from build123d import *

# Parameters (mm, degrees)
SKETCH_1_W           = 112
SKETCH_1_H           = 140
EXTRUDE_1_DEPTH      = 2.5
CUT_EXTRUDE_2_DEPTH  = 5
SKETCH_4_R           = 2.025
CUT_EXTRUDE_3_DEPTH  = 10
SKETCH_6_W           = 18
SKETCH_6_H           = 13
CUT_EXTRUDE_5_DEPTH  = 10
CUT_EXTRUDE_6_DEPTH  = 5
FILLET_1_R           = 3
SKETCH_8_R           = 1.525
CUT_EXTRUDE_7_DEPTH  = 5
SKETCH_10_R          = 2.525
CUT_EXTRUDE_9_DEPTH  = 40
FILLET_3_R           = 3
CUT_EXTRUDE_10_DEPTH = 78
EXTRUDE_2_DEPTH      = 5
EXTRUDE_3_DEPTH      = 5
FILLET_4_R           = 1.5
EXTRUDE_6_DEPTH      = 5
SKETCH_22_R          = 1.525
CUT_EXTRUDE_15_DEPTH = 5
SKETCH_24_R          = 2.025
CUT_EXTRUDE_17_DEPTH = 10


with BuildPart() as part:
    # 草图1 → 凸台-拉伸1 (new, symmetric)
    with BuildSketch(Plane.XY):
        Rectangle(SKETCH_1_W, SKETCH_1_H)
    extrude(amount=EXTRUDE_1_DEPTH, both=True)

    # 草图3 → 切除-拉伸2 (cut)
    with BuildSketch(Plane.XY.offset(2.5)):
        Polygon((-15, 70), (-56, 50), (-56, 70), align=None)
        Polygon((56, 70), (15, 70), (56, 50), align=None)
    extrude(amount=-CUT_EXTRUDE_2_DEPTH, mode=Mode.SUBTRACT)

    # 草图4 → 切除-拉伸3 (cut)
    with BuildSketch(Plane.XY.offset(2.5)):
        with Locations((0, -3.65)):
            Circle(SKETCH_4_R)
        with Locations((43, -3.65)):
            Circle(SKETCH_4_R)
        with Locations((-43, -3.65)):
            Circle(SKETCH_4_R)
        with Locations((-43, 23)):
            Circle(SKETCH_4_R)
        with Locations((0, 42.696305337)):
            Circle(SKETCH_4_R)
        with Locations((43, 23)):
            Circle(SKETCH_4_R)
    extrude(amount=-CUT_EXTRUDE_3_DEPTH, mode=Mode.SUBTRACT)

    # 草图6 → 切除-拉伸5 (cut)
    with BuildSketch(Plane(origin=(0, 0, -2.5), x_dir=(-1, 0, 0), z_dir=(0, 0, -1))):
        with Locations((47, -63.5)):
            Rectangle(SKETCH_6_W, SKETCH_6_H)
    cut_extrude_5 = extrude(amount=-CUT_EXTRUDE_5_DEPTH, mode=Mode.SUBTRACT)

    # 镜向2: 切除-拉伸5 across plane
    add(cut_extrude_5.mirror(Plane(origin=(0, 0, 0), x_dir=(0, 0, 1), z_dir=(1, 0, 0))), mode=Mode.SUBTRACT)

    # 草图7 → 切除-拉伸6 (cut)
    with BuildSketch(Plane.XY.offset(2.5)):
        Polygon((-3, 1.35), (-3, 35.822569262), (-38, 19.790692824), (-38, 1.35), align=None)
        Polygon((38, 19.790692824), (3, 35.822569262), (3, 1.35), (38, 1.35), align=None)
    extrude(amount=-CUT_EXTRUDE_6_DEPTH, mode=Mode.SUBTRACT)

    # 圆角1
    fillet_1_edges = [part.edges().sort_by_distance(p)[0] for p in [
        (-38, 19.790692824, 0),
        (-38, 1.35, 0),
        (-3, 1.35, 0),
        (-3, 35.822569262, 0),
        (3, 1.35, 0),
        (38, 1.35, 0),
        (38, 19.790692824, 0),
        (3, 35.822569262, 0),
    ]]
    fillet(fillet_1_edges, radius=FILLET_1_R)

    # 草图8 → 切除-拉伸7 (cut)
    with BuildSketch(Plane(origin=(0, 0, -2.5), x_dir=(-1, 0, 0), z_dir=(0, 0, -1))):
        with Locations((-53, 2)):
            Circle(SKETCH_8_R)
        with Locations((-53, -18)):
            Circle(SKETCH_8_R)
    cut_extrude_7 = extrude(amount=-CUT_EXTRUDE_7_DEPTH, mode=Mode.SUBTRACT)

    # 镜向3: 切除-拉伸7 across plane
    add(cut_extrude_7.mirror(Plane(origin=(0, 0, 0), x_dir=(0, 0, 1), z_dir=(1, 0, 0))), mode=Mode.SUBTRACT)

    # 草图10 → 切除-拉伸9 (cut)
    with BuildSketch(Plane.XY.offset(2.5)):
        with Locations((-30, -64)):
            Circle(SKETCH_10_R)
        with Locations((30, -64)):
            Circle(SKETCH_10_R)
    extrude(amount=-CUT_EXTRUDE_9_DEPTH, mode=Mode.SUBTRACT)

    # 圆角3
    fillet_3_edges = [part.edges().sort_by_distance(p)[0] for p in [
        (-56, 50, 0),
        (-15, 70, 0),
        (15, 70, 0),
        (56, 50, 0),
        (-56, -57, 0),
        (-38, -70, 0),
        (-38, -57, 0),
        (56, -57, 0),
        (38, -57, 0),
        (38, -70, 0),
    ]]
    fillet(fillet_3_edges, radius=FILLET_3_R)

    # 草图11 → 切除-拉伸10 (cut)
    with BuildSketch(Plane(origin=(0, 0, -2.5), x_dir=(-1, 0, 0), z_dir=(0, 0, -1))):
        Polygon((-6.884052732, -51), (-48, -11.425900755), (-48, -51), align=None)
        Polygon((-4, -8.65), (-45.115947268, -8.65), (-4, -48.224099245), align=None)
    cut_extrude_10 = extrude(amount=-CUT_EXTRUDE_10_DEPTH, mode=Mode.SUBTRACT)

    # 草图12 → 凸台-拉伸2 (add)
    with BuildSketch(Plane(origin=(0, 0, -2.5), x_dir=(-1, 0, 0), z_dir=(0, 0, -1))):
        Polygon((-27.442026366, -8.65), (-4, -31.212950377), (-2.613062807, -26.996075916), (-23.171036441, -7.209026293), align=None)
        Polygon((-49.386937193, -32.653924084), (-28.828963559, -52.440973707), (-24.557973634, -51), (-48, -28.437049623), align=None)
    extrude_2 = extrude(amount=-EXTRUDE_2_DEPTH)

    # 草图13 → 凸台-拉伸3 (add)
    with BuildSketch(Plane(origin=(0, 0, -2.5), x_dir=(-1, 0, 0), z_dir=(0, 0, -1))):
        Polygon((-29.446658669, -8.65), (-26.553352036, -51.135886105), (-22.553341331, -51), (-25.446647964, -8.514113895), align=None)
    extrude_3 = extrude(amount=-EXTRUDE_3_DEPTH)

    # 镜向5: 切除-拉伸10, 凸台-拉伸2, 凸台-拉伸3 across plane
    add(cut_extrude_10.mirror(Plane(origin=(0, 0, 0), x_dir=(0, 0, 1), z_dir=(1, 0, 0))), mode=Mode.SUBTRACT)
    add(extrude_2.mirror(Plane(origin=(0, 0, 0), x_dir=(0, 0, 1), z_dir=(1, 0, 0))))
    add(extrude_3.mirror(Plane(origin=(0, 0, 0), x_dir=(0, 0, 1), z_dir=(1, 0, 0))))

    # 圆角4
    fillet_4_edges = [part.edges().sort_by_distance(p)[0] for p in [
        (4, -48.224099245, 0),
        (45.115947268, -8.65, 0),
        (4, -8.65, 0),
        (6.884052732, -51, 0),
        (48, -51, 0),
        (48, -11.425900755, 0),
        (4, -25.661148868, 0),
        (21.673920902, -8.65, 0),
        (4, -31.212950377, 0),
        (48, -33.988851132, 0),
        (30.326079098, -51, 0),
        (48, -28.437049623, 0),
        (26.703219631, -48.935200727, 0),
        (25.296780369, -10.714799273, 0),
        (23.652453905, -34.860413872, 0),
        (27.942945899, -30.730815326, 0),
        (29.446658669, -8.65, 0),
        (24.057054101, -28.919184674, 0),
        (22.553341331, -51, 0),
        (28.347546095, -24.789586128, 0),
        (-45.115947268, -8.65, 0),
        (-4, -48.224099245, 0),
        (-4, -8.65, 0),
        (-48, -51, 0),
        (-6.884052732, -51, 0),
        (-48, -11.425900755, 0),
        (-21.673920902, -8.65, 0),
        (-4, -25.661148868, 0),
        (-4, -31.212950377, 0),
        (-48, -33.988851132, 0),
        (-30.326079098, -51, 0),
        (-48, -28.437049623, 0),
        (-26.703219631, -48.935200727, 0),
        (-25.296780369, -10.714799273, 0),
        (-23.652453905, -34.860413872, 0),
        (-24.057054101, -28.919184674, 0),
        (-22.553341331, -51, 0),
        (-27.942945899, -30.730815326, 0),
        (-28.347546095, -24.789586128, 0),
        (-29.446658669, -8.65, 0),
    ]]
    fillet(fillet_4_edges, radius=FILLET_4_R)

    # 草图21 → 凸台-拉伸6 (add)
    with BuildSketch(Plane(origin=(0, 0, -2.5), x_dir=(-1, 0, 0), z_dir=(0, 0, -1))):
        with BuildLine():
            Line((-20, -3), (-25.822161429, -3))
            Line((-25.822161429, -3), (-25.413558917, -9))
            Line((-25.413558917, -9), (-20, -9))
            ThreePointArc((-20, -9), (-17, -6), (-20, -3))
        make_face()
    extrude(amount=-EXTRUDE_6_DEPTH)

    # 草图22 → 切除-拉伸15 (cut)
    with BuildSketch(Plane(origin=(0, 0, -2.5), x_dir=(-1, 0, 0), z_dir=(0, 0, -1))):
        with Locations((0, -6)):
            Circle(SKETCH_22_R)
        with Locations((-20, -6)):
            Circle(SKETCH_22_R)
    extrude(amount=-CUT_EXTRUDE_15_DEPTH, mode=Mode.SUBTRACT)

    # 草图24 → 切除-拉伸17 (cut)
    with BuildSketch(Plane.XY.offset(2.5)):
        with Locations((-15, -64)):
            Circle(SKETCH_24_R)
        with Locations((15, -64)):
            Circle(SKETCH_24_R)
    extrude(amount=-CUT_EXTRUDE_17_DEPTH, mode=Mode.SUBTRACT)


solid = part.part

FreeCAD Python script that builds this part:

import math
import FreeCAD as App
import Part
import Sketcher
from FreeCAD import Vector


def edges_at(feature, points):
    """Names of the edges that pass closest to the given points."""
    edges = feature.Shape.Edges
    near = lambda p: min(range(len(edges)), key=lambda i: edges[i].distToShape(Part.Vertex(*p))[0])
    return sorted({f"Edge{near(p) + 1}" for p in points})

doc = App.newDocument("Part")
body = doc.addObject("PartDesign::Body", "Body")

# Sketch on XY plane
sketch1 = doc.addObject("Sketcher::SketchObject", "Sketch")
body.addObject(sketch1)
sketch1.AttachmentSupport = (doc.XY_Plane, [""])
sketch1.MapMode = "FlatFace"
sketch1.addGeometry(Part.LineSegment(Vector(-56, 70, 0), Vector(-56, -70, 0)), False)
sketch1.addGeometry(Part.LineSegment(Vector(-56, -70, 0), Vector(56, -70, 0)), False)
sketch1.addGeometry(Part.LineSegment(Vector(56, -70, 0), Vector(56, 70, 0)), False)
sketch1.addGeometry(Part.LineSegment(Vector(56, 70, 0), Vector(-56, 70, 0)), False)
sketch1.addConstraint(Sketcher.Constraint("Coincident", 0, 2, 1, 1))
sketch1.addConstraint(Sketcher.Constraint("Coincident", 1, 2, 2, 1))
sketch1.addConstraint(Sketcher.Constraint("Coincident", 2, 2, 3, 1))
sketch1.addConstraint(Sketcher.Constraint("Coincident", 3, 2, 0, 1))
sketch1.addConstraint(Sketcher.Constraint("Vertical", 0))
sketch1.addConstraint(Sketcher.Constraint("Horizontal", 1))
sketch1.addConstraint(Sketcher.Constraint("Vertical", 2))
sketch1.addConstraint(Sketcher.Constraint("Horizontal", 3))
sketch1.addConstraint(Sketcher.Constraint("Symmetric", 0, 2, 2, 2, -1, 1))
sketch1.addConstraint(Sketcher.Constraint("DistanceX", 1, 1, 1, 2, 112.0))
sketch1.addConstraint(Sketcher.Constraint("DistanceY", 0, 2, 0, 1, 140.0))
pad1 = doc.addObject("PartDesign::Pad", "Pad")
body.addObject(pad1)
pad1.Profile = sketch1
pad1.Length = 5
pad1.Midplane = True

# Sketch on XY plane
sketch2 = doc.addObject("Sketcher::SketchObject", "Sketch001")
body.addObject(sketch2)
sketch2.AttachmentSupport = (doc.XY_Plane, [""])
sketch2.MapMode = "FlatFace"
sketch2.AttachmentOffset = App.Placement(Vector(0, 0, 2.5), App.Rotation())
sketch2.addGeometry(Part.LineSegment(Vector(-56, 50, 0), Vector(-15, 70, 0)), False)
sketch2.addGeometry(Part.LineSegment(Vector(-15, 70, 0), Vector(-56, 70, 0)), False)
sketch2.addGeometry(Part.LineSegment(Vector(-56, 70, 0), Vector(-56, 50, 0)), False)
sketch2.addGeometry(Part.LineSegment(Vector(56, 70, 0), Vector(15, 70, 0)), False)
sketch2.addGeometry(Part.LineSegment(Vector(15, 70, 0), Vector(56, 50, 0)), False)
sketch2.addGeometry(Part.LineSegment(Vector(56, 50, 0), Vector(56, 70, 0)), False)
sketch2.addConstraint(Sketcher.Constraint("Coincident", 0, 2, 1, 1))
sketch2.addConstraint(Sketcher.Constraint("Coincident", 1, 2, 2, 1))
sketch2.addConstraint(Sketcher.Constraint("Coincident", 2, 2, 0, 1))
sketch2.addConstraint(Sketcher.Constraint("Coincident", 3, 2, 4, 1))
sketch2.addConstraint(Sketcher.Constraint("Coincident", 4, 2, 5, 1))
sketch2.addConstraint(Sketcher.Constraint("Coincident", 5, 2, 3, 1))
sketch2.addConstraint(Sketcher.Constraint("Horizontal", 1))
sketch2.addConstraint(Sketcher.Constraint("Vertical", 2))
sketch2.addConstraint(Sketcher.Constraint("Horizontal", 3))
sketch2.addConstraint(Sketcher.Constraint("Vertical", 5))
sketch2.addConstraint(Sketcher.Constraint("Symmetric", 0, 2, 3, 2, -2))
sketch2.addConstraint(Sketcher.Constraint("Symmetric", 2, 2, 4, 2, -2))
sketch2.addConstraint(Sketcher.Constraint("DistanceX", 1, 2, 1, 1, 41.0))
sketch2.addConstraint(Sketcher.Constraint("DistanceY", 2, 2, 2, 1, 20.0))
sketch2.addConstraint(Sketcher.Constraint("DistanceX", 0, 2, -1, 1, 15.0))
sketch2.addConstraint(Sketcher.Constraint("DistanceY", -1, 1, 0, 2, 70.0))
pocket1 = doc.addObject("PartDesign::Pocket", "Pocket")
body.addObject(pocket1)
pocket1.Profile = sketch2
pocket1.Length = 5

# Sketch on XY plane
sketch3 = doc.addObject("Sketcher::SketchObject", "Sketch002")
body.addObject(sketch3)
sketch3.AttachmentSupport = (doc.XY_Plane, [""])
sketch3.MapMode = "FlatFace"
sketch3.AttachmentOffset = App.Placement(Vector(0, 0, 2.5), App.Rotation())
sketch3.addGeometry(Part.Circle(Vector(0, -3.6, 0), Vector(0, 0, 1), 2), False)
sketch3.addGeometry(Part.Circle(Vector(43, -3.6, 0), Vector(0, 0, 1), 2), False)
sketch3.addGeometry(Part.Circle(Vector(-43, -3.6, 0), Vector(0, 0, 1), 2), False)
sketch3.addGeometry(Part.Circle(Vector(-43, 23, 0), Vector(0, 0, 1), 2), False)
sketch3.addGeometry(Part.Circle(Vector(0, 42.7, 0), Vector(0, 0, 1), 2), False)
sketch3.addGeometry(Part.Circle(Vector(43, 23, 0), Vector(0, 0, 1), 2), False)
sketch3.addConstraint(Sketcher.Constraint("Equal", 0, 1))
sketch3.addConstraint(Sketcher.Constraint("Equal", 1, 2))
sketch3.addConstraint(Sketcher.Constraint("Equal", 2, 3))
sketch3.addConstraint(Sketcher.Constraint("Equal", 3, 4))
sketch3.addConstraint(Sketcher.Constraint("Equal", 4, 5))
sketch3.addConstraint(Sketcher.Constraint("Symmetric", 1, 3, 2, 3, -2))
sketch3.addConstraint(Sketcher.Constraint("Symmetric", 3, 3, 5, 3, -2))
sketch3.addConstraint(Sketcher.Constraint("PointOnObject", 0, 3, -2))
sketch3.addConstraint(Sketcher.Constraint("PointOnObject", 4, 3, -2))
sketch3.addConstraint(Sketcher.Constraint("Horizontal", 0, 3, 1, 3))
sketch3.addConstraint(Sketcher.Constraint("Vertical", 2, 3, 3, 3))
sketch3.addConstraint(Sketcher.Constraint("Diameter", 0, 4.05))
sketch3.addConstraint(Sketcher.Constraint("DistanceX", -1, 1, 1, 3, 43.0))
sketch3.addConstraint(Sketcher.Constraint("DistanceY", -1, 1, 3, 3, 23.0))
sketch3.addConstraint(Sketcher.Constraint("DistanceY", 0, 3, -1, 1, 3.65))
sketch3.addConstraint(Sketcher.Constraint("DistanceY", -1, 1, 4, 3, 42.696305))
pocket2 = doc.addObject("PartDesign::Pocket", "Pocket001")
body.addObject(pocket2)
pocket2.Profile = sketch3
pocket2.Length = 10

# Sketch on XY plane
sketch4 = doc.addObject("Sketcher::SketchObject", "Sketch003")
body.addObject(sketch4)
sketch4.AttachmentSupport = (doc.XY_Plane, [""])
sketch4.MapMode = "FlatFace"
sketch4.AttachmentOffset = App.Placement(Vector(0, 0, -2.5), App.Rotation())
sketch4.addGeometry(Part.LineSegment(Vector(-38, -57, 0), Vector(-38, -70, 0)), False)
sketch4.addGeometry(Part.LineSegment(Vector(-38, -70, 0), Vector(-56, -70, 0)), False)
sketch4.addGeometry(Part.LineSegment(Vector(-56, -70, 0), Vector(-56, -57, 0)), False)
sketch4.addGeometry(Part.LineSegment(Vector(-56, -57, 0), Vector(-38, -57, 0)), False)
sketch4.addConstraint(Sketcher.Constraint("Coincident", 0, 2, 1, 1))
sketch4.addConstraint(Sketcher.Constraint("Coincident", 1, 2, 2, 1))
sketch4.addConstraint(Sketcher.Constraint("Coincident", 2, 2, 3, 1))
sketch4.addConstraint(Sketcher.Constraint("Coincident", 3, 2, 0, 1))
sketch4.addConstraint(Sketcher.Constraint("Vertical", 0))
sketch4.addConstraint(Sketcher.Constraint("Horizontal", 1))
sketch4.addConstraint(Sketcher.Constraint("Vertical", 2))
sketch4.addConstraint(Sketcher.Constraint("Horizontal", 3))
sketch4.addConstraint(Sketcher.Constraint("DistanceX", 1, 2, 1, 1, 18.0))
sketch4.addConstraint(Sketcher.Constraint("DistanceY", 0, 2, 0, 1, 13.0))
sketch4.addConstraint(Sketcher.Constraint("DistanceX", 0, 2, -1, 1, 38.0))
sketch4.addConstraint(Sketcher.Constraint("DistanceY", 0, 2, -1, 1, 70.0))
pocket3 = doc.addObject("PartDesign::Pocket", "Pocket002")
body.addObject(pocket3)
pocket3.Profile = sketch4
pocket3.Length = 10
pocket3.Reversed = True
doc.recompute()

mirrored = doc.addObject("PartDesign::Mirrored", "Mirrored")
body.addObject(mirrored)
mirrored.Originals = [pocket3]
mirrored.MirrorPlane = (doc.YZ_Plane, [""])
body.Tip = mirrored

# Sketch on XY plane
sketch5 = doc.addObject("Sketcher::SketchObject", "Sketch004")
body.addObject(sketch5)
sketch5.AttachmentSupport = (doc.XY_Plane, [""])
sketch5.MapMode = "FlatFace"
sketch5.AttachmentOffset = App.Placement(Vector(0, 0, 2.5), App.Rotation())
sketch5.addGeometry(Part.LineSegment(Vector(-3, 1, 0), Vector(-3, 36, 0)), False)
sketch5.addGeometry(Part.LineSegment(Vector(-3, 36, 0), Vector(-38, 20, 0)), False)
sketch5.addGeometry(Part.LineSegment(Vector(-38, 20, 0), Vector(-38, 1, 0)), False)
sketch5.addGeometry(Part.LineSegment(Vector(-38, 1, 0), Vector(-3, 1, 0)), False)
sketch5.addGeometry(Part.LineSegment(Vector(38, 20, 0), Vector(3, 36, 0)), False)
sketch5.addGeometry(Part.LineSegment(Vector(3, 36, 0), Vector(3, 1, 0)), False)
sketch5.addGeometry(Part.LineSegment(Vector(3, 1, 0), Vector(38, 1, 0)), False)
sketch5.addGeometry(Part.LineSegment(Vector(38, 1, 0), Vector(38, 20, 0)), False)
sketch5.addConstraint(Sketcher.Constraint("Coincident", 0, 2, 1, 1))
sketch5.addConstraint(Sketcher.Constraint("Coincident", 1, 2, 2, 1))
sketch5.addConstraint(Sketcher.Constraint("Coincident", 2, 2, 3, 1))
sketch5.addConstraint(Sketcher.Constraint("Coincident", 3, 2, 0, 1))
sketch5.addConstraint(Sketcher.Constraint("Coincident", 4, 2, 5, 1))
sketch5.addConstraint(Sketcher.Constraint("Coincident", 5, 2, 6, 1))
sketch5.addConstraint(Sketcher.Constraint("Coincident", 6, 2, 7, 1))
sketch5.addConstraint(Sketcher.Constraint("Coincident", 7, 2, 4, 1))
sketch5.addConstraint(Sketcher.Constraint("Vertical", 0))
sketch5.addConstraint(Sketcher.Constraint("Vertical", 2))
sketch5.addConstraint(Sketcher.Constraint("Horizontal", 3))
sketch5.addConstraint(Sketcher.Constraint("Vertical", 5))
sketch5.addConstraint(Sketcher.Constraint("Horizontal", 6))
sketch5.addConstraint(Sketcher.Constraint("Vertical", 7))
sketch5.addConstraint(Sketcher.Constraint("Symmetric", 0, 2, 4, 2, -2))
sketch5.addConstraint(Sketcher.Constraint("Symmetric", 2, 2, 6, 2, -2))
sketch5.addConstraint(Sketcher.Constraint("Horizontal", 1, 2, 7, 2))
sketch5.addConstraint(Sketcher.Constraint("DistanceX", 3, 1, 3, 2, 35.0))
sketch5.addConstraint(Sketcher.Constraint("DistanceX", 0, 2, -1, 1, 3.0))
sketch5.addConstraint(Sketcher.Constraint("DistanceY", -1, 1, 2, 2, 1.35))
sketch5.addConstraint(Sketcher.Constraint("DistanceY", 0, 1, 0, 2, 34.472569))
sketch5.addConstraint(Sketcher.Constraint("DistanceY", 2, 2, 2, 1, 18.440693))
pocket4 = doc.addObject("PartDesign::Pocket", "Pocket003")
body.addObject(pocket4)
pocket4.Profile = sketch5
pocket4.Length = 5
doc.recompute()

fillet = doc.addObject("PartDesign::Fillet", "Fillet")
body.addObject(fillet)
fillet.Base = (pocket4, edges_at(pocket4, [
    (-38, 19.791, 0),
    (-38, 1.35, 0),
    (-3, 1.35, 0),
    (-3, 35.823, 0),
    (3, 1.35, 0),
    (38, 1.35, 0),
    (38, 19.791, 0),
    (3, 35.823, 0),
]))
fillet.Radius = 3

# Sketch on XY plane
sketch6 = doc.addObject("Sketcher::SketchObject", "Sketch005")
body.addObject(sketch6)
sketch6.AttachmentSupport = (doc.XY_Plane, [""])
sketch6.MapMode = "FlatFace"
sketch6.AttachmentOffset = App.Placement(Vector(0, 0, -2.5), App.Rotation())
sketch6.addGeometry(Part.Circle(Vector(53, 2, 0), Vector(0, 0, 1), 1.5), False)
sketch6.addGeometry(Part.Circle(Vector(53, -18, 0), Vector(0, 0, 1), 1.5), False)
sketch6.addConstraint(Sketcher.Constraint("Equal", 0, 1))
sketch6.addConstraint(Sketcher.Constraint("Vertical", 0, 3, 1, 3))
sketch6.addConstraint(Sketcher.Constraint("Diameter", 0, 3.05))
sketch6.addConstraint(Sketcher.Constraint("DistanceX", -1, 1, 0, 3, 53.0))
sketch6.addConstraint(Sketcher.Constraint("DistanceY", -1, 1, 0, 3, 2.0))
sketch6.addConstraint(Sketcher.Constraint("DistanceY", 1, 3, -1, 1, 18.0))
pocket5 = doc.addObject("PartDesign::Pocket", "Pocket004")
body.addObject(pocket5)
pocket5.Profile = sketch6
pocket5.Length = 5
pocket5.Reversed = True
doc.recompute()

mirrored2 = doc.addObject("PartDesign::Mirrored", "Mirrored001")
body.addObject(mirrored2)
mirrored2.Originals = [pocket5]
mirrored2.MirrorPlane = (doc.YZ_Plane, [""])
body.Tip = mirrored2

# Sketch on XY plane
sketch7 = doc.addObject("Sketcher::SketchObject", "Sketch006")
body.addObject(sketch7)
sketch7.AttachmentSupport = (doc.XY_Plane, [""])
sketch7.MapMode = "FlatFace"
sketch7.AttachmentOffset = App.Placement(Vector(0, 0, 2.5), App.Rotation())
sketch7.addGeometry(Part.Circle(Vector(-30, -64, 0), Vector(0, 0, 1), 2.5), False)
sketch7.addGeometry(Part.Circle(Vector(30, -64, 0), Vector(0, 0, 1), 2.5), False)
sketch7.addConstraint(Sketcher.Constraint("Equal", 0, 1))
sketch7.addConstraint(Sketcher.Constraint("Symmetric", 0, 3, 1, 3, -2))
sketch7.addConstraint(Sketcher.Constraint("Diameter", 0, 5.05))
sketch7.addConstraint(Sketcher.Constraint("DistanceX", 0, 3, -1, 1, 30.0))
sketch7.addConstraint(Sketcher.Constraint("DistanceY", 0, 3, -1, 1, 64.0))
pocket6 = doc.addObject("PartDesign::Pocket", "Pocket005")
body.addObject(pocket6)
pocket6.Profile = sketch7
pocket6.Length = 40
doc.recompute()

fillet2 = doc.addObject("PartDesign::Fillet", "Fillet001")
body.addObject(fillet2)
fillet2.Base = (pocket6, edges_at(pocket6, [
    (-56, 50, 0),
    (-15, 70, 0),
    (15, 70, 0),
    (56, 50, 0),
    (-56, -57, 0),
    (-38, -70, 0),
    (-38, -57, 0),
    (56, -57, 0),
    (38, -57, 0),
    (38, -70, 0),
]))
fillet2.Radius = 3

# Sketch on XY plane
sketch8 = doc.addObject("Sketcher::SketchObject", "Sketch007")
body.addObject(sketch8)
sketch8.AttachmentSupport = (doc.XY_Plane, [""])
sketch8.MapMode = "FlatFace"
sketch8.AttachmentOffset = App.Placement(Vector(0, 0, -2.5), App.Rotation())
sketch8.addGeometry(Part.LineSegment(Vector(7, -51, 0), Vector(48, -11, 0)), False)
sketch8.addGeometry(Part.LineSegment(Vector(48, -11, 0), Vector(48, -51, 0)), False)
sketch8.addGeometry(Part.LineSegment(Vector(48, -51, 0), Vector(7, -51, 0)), False)
sketch8.addGeometry(Part.LineSegment(Vector(4, -9, 0), Vector(45, -9, 0)), False)
sketch8.addGeometry(Part.LineSegment(Vector(45, -9, 0), Vector(4, -48, 0)), False)
sketch8.addGeometry(Part.LineSegment(Vector(4, -48, 0), Vector(4, -9, 0)), False)
sketch8.addConstraint(Sketcher.Constraint("Coincident", 0, 2, 1, 1))
sketch8.addConstraint(Sketcher.Constraint("Coincident", 1, 2, 2, 1))
sketch8.addConstraint(Sketcher.Constraint("Coincident", 2, 2, 0, 1))
sketch8.addConstraint(Sketcher.Constraint("Coincident", 3, 2, 4, 1))
sketch8.addConstraint(Sketcher.Constraint("Coincident", 4, 2, 5, 1))
sketch8.addConstraint(Sketcher.Constraint("Coincident", 5, 2, 3, 1))
sketch8.addConstraint(Sketcher.Constraint("Vertical", 1))
sketch8.addConstraint(Sketcher.Constraint("Horizontal", 2))
sketch8.addConstraint(Sketcher.Constraint("Horizontal", 3))
sketch8.addConstraint(Sketcher.Constraint("Vertical", 5))
sketch8.addConstraint(Sketcher.Constraint("Parallel", 0, 4))
sketch8.addConstraint(Sketcher.Constraint("Equal", 2, 3))
sketch8.addConstraint(Sketcher.Constraint("DistanceX", -1, 1, 0, 2, 48.0))
sketch8.addConstraint(Sketcher.Constraint("DistanceY", 1, 2, -1, 1, 51.0))
sketch8.addConstraint(Sketcher.Constraint("DistanceX", -1, 1, 4, 2, 4.0))
sketch8.addConstraint(Sketcher.Constraint("DistanceY", 3, 2, -1, 1, 8.65))
sketch8.addConstraint(Sketcher.Constraint("DistanceY", 1, 2, 1, 1, 39.574099))
sketch8.addConstraint(Sketcher.Constraint("DistanceX", 2, 2, 2, 1, 41.115947))
pocket7 = doc.addObject("PartDesign::Pocket", "Pocket006")
body.addObject(pocket7)
pocket7.Profile = sketch8
pocket7.Length = 78
pocket7.Reversed = True

# Sketch on XY plane
sketch9 = doc.addObject("Sketcher::SketchObject", "Sketch008")
body.addObject(sketch9)
sketch9.AttachmentSupport = (doc.XY_Plane, [""])
sketch9.MapMode = "FlatFace"
sketch9.AttachmentOffset = App.Placement(Vector(0, 0, -2.5), App.Rotation())
sketch9.addGeometry(Part.LineSegment(Vector(27.4, -8.7, 0), Vector(4, -31.2, 0)), False)
sketch9.addGeometry(Part.LineSegment(Vector(4, -31.2, 0), Vector(2.6, -27, 0)), False)
sketch9.addGeometry(Part.LineSegment(Vector(2.6, -27, 0), Vector(23.2, -7.2, 0)), False)
sketch9.addGeometry(Part.LineSegment(Vector(23.2, -7.2, 0), Vector(27.4, -8.7, 0)), False)
sketch9.addGeometry(Part.LineSegment(Vector(49.4, -32.7, 0), Vector(28.8, -52.4, 0)), False)
sketch9.addGeometry(Part.LineSegment(Vector(28.8, -52.4, 0), Vector(24.6, -51, 0)), False)
sketch9.addGeometry(Part.LineSegment(Vector(24.6, -51, 0), Vector(48, -28.4, 0)), False)
sketch9.addGeometry(Part.LineSegment(Vector(48, -28.4, 0), Vector(49.4, -32.7, 0)), False)
sketch9.addConstraint(Sketcher.Constraint("Coincident", 0, 2, 1, 1))
sketch9.addConstraint(Sketcher.Constraint("Coincident", 1, 2, 2, 1))
sketch9.addConstraint(Sketcher.Constraint("Coincident", 2, 2, 3, 1))
sketch9.addConstraint(Sketcher.Constraint("Coincident", 3, 2, 0, 1))
sketch9.addConstraint(Sketcher.Constraint("Coincident", 4, 2, 5, 1))
sketch9.addConstraint(Sketcher.Constraint("Coincident", 5, 2, 6, 1))
sketch9.addConstraint(Sketcher.Constraint("Coincident", 6, 2, 7, 1))
sketch9.addConstraint(Sketcher.Constraint("Coincident", 7, 2, 4, 1))
sketch9.addConstraint(Sketcher.Constraint("Parallel", 0, 2))
sketch9.addConstraint(Sketcher.Constraint("Parallel", 2, 4))
sketch9.addConstraint(Sketcher.Constraint("Parallel", 3, 5))
sketch9.addConstraint(Sketcher.Constraint("Parallel", 4, 6))
sketch9.addConstraint(Sketcher.Constraint("Parallel", 1, 7))
sketch9.addConstraint(Sketcher.Constraint("Equal", 2, 4))
sketch9.addConstraint(Sketcher.Constraint("Equal", 3, 5))
sketch9.addConstraint(Sketcher.Constraint("DistanceX", -1, 1, 0, 2, 4.0))
sketch9.addConstraint(Sketcher.Constraint("DistanceY", 5, 2, -1, 1, 51.0))
sketch9.addConstraint(Sketcher.Constraint("DistanceX", -1, 1, 6, 2, 48.0))
sketch9.addConstraint(Sketcher.Constraint("DistanceY", 3, 2, -1, 1, 8.65))
sketch9.addConstraint(Sketcher.Constraint("Distance", 1, 4.439102))
sketch9.addConstraint(Sketcher.Constraint("DistanceX", 1, 2, 4, 2, 26.215901))
sketch9.addConstraint(Sketcher.Constraint("DistanceY", 0, 2, 6, 2, 2.775901))
sketch9.addConstraint(Sketcher.Constraint("Distance", 0, 32.536369))
sketch9.addConstraint(Sketcher.Constraint("DistanceY", 1, 2, 2, 2, 19.78705))
pad2 = doc.addObject("PartDesign::Pad", "Pad001")
body.addObject(pad2)
pad2.Profile = sketch9
pad2.Length = 5

# Sketch on XY plane
sketch10 = doc.addObject("Sketcher::SketchObject", "Sketch009")
body.addObject(sketch10)
sketch10.AttachmentSupport = (doc.XY_Plane, [""])
sketch10.MapMode = "FlatFace"
sketch10.AttachmentOffset = App.Placement(Vector(0, 0, -2.5), App.Rotation())
sketch10.addGeometry(Part.LineSegment(Vector(29.4, -8.7, 0), Vector(26.6, -51.1, 0)), False)
sketch10.addGeometry(Part.LineSegment(Vector(26.6, -51.1, 0), Vector(22.6, -51, 0)), False)
sketch10.addGeometry(Part.LineSegment(Vector(22.6, -51, 0), Vector(25.4, -8.5, 0)), False)
sketch10.addGeometry(Part.LineSegment(Vector(25.4, -8.5, 0), Vector(29.4, -8.7, 0)), False)
sketch10.addConstraint(Sketcher.Constraint("Coincident", 0, 2, 1, 1))
sketch10.addConstraint(Sketcher.Constraint("Coincident", 1, 2, 2, 1))
sketch10.addConstraint(Sketcher.Constraint("Coincident", 2, 2, 3, 1))
sketch10.addConstraint(Sketcher.Constraint("Coincident", 3, 2, 0, 1))
sketch10.addConstraint(Sketcher.Constraint("Parallel", 0, 2))
sketch10.addConstraint(Sketcher.Constraint("Parallel", 1, 3))
sketch10.addConstraint(Sketcher.Constraint("DistanceY", 1, 2, -1, 1, 51.0))
sketch10.addConstraint(Sketcher.Constraint("DistanceY", 3, 2, -1, 1, 8.65))
sketch10.addConstraint(Sketcher.Constraint("Distance", 0, 42.58429))
sketch10.addConstraint(Sketcher.Constraint("Distance", 1, 4.002318))
sketch10.addConstraint(Sketcher.Constraint("DistanceX", -1, 1, 1, 2, 22.553341))
sketch10.addConstraint(Sketcher.Constraint("DistanceX", -1, 1, 3, 2, 29.446659))
pad3 = doc.addObject("PartDesign::Pad", "Pad002")
body.addObject(pad3)
pad3.Profile = sketch10
pad3.Length = 5
doc.recompute()

mirrored3 = doc.addObject("PartDesign::Mirrored", "Mirrored002")
body.addObject(mirrored3)
mirrored3.Originals = [pocket7, pad2, pad3]
mirrored3.MirrorPlane = (doc.YZ_Plane, [""])
body.Tip = mirrored3
doc.recompute()

fillet3 = doc.addObject("PartDesign::Fillet", "Fillet002")
body.addObject(fillet3)
fillet3.Base = (mirrored3, edges_at(mirrored3, [
    (4, -48.224, 0),
    (45.116, -8.65, 0),
    (4, -8.65, 0),
    (6.884, -51, 0),
    (48, -51, 0),
    (48, -11.426, 0),
    (4, -25.661, 0),
    (21.674, -8.65, 0),
    (4, -31.213, 0),
    (48, -33.989, 0),
    (30.326, -51, 0),
    (48, -28.437, 0),
    (26.703, -48.935, 0),
    (25.297, -10.715, 0),
    (23.652, -34.86, 0),
    (27.943, -30.731, 0),
    (29.447, -8.65, 0),
    (24.057, -28.919, 0),
    (22.553, -51, 0),
    (28.348, -24.79, 0),
    (-45.116, -8.65, 0),
    (-4, -48.224, 0),
    (-4, -8.65, 0),
    (-48, -51, 0),
    (-6.884, -51, 0),
    (-48, -11.426, 0),
    (-21.674, -8.65, 0),
    (-4, -25.661, 0),
    (-4, -31.213, 0),
    (-48, -33.989, 0),
    (-30.326, -51, 0),
    (-48, -28.437, 0),
    (-26.703, -48.935, 0),
    (-25.297, -10.715, 0),
    (-23.652, -34.86, 0),
    (-24.057, -28.919, 0),
    (-22.553, -51, 0),
    (-27.943, -30.731, 0),
    (-28.348, -24.79, 0),
    (-29.447, -8.65, 0),
]))
fillet3.Radius = 1.5

# Sketch on XY plane
sketch11 = doc.addObject("Sketcher::SketchObject", "Sketch010")
body.addObject(sketch11)
sketch11.AttachmentSupport = (doc.XY_Plane, [""])
sketch11.MapMode = "FlatFace"
sketch11.AttachmentOffset = App.Placement(Vector(0, 0, -2.5), App.Rotation())
sketch11.addGeometry(Part.LineSegment(Vector(20, -3, 0), Vector(25.8, -3, 0)), False)
sketch11.addGeometry(Part.LineSegment(Vector(25.8, -3, 0), Vector(25.4, -9, 0)), False)
sketch11.addGeometry(Part.LineSegment(Vector(25.4, -9, 0), Vector(20, -9, 0)), False)
sketch11.addGeometry(Part.ArcOfCircle(Part.Circle(Vector(20, -6, 0), Vector(0, 0, 1), 3), math.radians(90), math.radians(270)), False)
sketch11.addConstraint(Sketcher.Constraint("Coincident", 0, 2, 1, 1))
sketch11.addConstraint(Sketcher.Constraint("Coincident", 1, 2, 2, 1))
sketch11.addConstraint(Sketcher.Constraint("Tangent", 2, 2, 3, 2))
sketch11.addConstraint(Sketcher.Constraint("Tangent", 3, 1, 0, 1))
sketch11.addConstraint(Sketcher.Constraint("Horizontal", 0))
sketch11.addConstraint(Sketcher.Constraint("Horizontal", 2))
sketch11.addConstraint(Sketcher.Constraint("Radius", 3, 3.0))
sketch11.addConstraint(Sketcher.Constraint("DistanceX", -1, 1, 3, 3, 20.0))
sketch11.addConstraint(Sketcher.Constraint("DistanceY", 3, 3, -1, 1, 6.0))
sketch11.addConstraint(Sketcher.Constraint("DistanceX", 0, 1, 0, 2, 5.822161))
sketch11.addConstraint(Sketcher.Constraint("DistanceX", 2, 2, 2, 1, 5.413559))
pad4 = doc.addObject("PartDesign::Pad", "Pad003")
body.addObject(pad4)
pad4.Profile = sketch11
pad4.Length = 5

# Sketch on XY plane
sketch12 = doc.addObject("Sketcher::SketchObject", "Sketch011")
body.addObject(sketch12)
sketch12.AttachmentSupport = (doc.XY_Plane, [""])
sketch12.MapMode = "FlatFace"
sketch12.AttachmentOffset = App.Placement(Vector(0, 0, -2.5), App.Rotation())
sketch12.addGeometry(Part.Circle(Vector(0, -6, 0), Vector(0, 0, 1), 1.5), False)
sketch12.addGeometry(Part.Circle(Vector(20, -6, 0), Vector(0, 0, 1), 1.5), False)
sketch12.addConstraint(Sketcher.Constraint("Equal", 0, 1))
sketch12.addConstraint(Sketcher.Constraint("PointOnObject", 0, 3, -2))
sketch12.addConstraint(Sketcher.Constraint("Horizontal", 0, 3, 1, 3))
sketch12.addConstraint(Sketcher.Constraint("Diameter", 0, 3.05))
sketch12.addConstraint(Sketcher.Constraint("DistanceY", 0, 3, -1, 1, 6.0))
sketch12.addConstraint(Sketcher.Constraint("DistanceX", -1, 1, 1, 3, 20.0))
pocket8 = doc.addObject("PartDesign::Pocket", "Pocket007")
body.addObject(pocket8)
pocket8.Profile = sketch12
pocket8.Length = 5
pocket8.Reversed = True

# Sketch on XY plane
sketch13 = doc.addObject("Sketcher::SketchObject", "Sketch012")
body.addObject(sketch13)
sketch13.AttachmentSupport = (doc.XY_Plane, [""])
sketch13.MapMode = "FlatFace"
sketch13.AttachmentOffset = App.Placement(Vector(0, 0, 2.5), App.Rotation())
sketch13.addGeometry(Part.Circle(Vector(-15, -64, 0), Vector(0, 0, 1), 2), False)
sketch13.addGeometry(Part.Circle(Vector(15, -64, 0), Vector(0, 0, 1), 2), False)
sketch13.addConstraint(Sketcher.Constraint("Equal", 0, 1))
sketch13.addConstraint(Sketcher.Constraint("Symmetric", 0, 3, 1, 3, -2))
sketch13.addConstraint(Sketcher.Constraint("Diameter", 0, 4.05))
sketch13.addConstraint(Sketcher.Constraint("DistanceX", 0, 3, -1, 1, 15.0))
sketch13.addConstraint(Sketcher.Constraint("DistanceY", 0, 3, -1, 1, 64.0))
pocket9 = doc.addObject("PartDesign::Pocket", "Pocket008")
body.addObject(pocket9)
pocket9.Profile = sketch13
pocket9.Length = 10

doc.recompute()
